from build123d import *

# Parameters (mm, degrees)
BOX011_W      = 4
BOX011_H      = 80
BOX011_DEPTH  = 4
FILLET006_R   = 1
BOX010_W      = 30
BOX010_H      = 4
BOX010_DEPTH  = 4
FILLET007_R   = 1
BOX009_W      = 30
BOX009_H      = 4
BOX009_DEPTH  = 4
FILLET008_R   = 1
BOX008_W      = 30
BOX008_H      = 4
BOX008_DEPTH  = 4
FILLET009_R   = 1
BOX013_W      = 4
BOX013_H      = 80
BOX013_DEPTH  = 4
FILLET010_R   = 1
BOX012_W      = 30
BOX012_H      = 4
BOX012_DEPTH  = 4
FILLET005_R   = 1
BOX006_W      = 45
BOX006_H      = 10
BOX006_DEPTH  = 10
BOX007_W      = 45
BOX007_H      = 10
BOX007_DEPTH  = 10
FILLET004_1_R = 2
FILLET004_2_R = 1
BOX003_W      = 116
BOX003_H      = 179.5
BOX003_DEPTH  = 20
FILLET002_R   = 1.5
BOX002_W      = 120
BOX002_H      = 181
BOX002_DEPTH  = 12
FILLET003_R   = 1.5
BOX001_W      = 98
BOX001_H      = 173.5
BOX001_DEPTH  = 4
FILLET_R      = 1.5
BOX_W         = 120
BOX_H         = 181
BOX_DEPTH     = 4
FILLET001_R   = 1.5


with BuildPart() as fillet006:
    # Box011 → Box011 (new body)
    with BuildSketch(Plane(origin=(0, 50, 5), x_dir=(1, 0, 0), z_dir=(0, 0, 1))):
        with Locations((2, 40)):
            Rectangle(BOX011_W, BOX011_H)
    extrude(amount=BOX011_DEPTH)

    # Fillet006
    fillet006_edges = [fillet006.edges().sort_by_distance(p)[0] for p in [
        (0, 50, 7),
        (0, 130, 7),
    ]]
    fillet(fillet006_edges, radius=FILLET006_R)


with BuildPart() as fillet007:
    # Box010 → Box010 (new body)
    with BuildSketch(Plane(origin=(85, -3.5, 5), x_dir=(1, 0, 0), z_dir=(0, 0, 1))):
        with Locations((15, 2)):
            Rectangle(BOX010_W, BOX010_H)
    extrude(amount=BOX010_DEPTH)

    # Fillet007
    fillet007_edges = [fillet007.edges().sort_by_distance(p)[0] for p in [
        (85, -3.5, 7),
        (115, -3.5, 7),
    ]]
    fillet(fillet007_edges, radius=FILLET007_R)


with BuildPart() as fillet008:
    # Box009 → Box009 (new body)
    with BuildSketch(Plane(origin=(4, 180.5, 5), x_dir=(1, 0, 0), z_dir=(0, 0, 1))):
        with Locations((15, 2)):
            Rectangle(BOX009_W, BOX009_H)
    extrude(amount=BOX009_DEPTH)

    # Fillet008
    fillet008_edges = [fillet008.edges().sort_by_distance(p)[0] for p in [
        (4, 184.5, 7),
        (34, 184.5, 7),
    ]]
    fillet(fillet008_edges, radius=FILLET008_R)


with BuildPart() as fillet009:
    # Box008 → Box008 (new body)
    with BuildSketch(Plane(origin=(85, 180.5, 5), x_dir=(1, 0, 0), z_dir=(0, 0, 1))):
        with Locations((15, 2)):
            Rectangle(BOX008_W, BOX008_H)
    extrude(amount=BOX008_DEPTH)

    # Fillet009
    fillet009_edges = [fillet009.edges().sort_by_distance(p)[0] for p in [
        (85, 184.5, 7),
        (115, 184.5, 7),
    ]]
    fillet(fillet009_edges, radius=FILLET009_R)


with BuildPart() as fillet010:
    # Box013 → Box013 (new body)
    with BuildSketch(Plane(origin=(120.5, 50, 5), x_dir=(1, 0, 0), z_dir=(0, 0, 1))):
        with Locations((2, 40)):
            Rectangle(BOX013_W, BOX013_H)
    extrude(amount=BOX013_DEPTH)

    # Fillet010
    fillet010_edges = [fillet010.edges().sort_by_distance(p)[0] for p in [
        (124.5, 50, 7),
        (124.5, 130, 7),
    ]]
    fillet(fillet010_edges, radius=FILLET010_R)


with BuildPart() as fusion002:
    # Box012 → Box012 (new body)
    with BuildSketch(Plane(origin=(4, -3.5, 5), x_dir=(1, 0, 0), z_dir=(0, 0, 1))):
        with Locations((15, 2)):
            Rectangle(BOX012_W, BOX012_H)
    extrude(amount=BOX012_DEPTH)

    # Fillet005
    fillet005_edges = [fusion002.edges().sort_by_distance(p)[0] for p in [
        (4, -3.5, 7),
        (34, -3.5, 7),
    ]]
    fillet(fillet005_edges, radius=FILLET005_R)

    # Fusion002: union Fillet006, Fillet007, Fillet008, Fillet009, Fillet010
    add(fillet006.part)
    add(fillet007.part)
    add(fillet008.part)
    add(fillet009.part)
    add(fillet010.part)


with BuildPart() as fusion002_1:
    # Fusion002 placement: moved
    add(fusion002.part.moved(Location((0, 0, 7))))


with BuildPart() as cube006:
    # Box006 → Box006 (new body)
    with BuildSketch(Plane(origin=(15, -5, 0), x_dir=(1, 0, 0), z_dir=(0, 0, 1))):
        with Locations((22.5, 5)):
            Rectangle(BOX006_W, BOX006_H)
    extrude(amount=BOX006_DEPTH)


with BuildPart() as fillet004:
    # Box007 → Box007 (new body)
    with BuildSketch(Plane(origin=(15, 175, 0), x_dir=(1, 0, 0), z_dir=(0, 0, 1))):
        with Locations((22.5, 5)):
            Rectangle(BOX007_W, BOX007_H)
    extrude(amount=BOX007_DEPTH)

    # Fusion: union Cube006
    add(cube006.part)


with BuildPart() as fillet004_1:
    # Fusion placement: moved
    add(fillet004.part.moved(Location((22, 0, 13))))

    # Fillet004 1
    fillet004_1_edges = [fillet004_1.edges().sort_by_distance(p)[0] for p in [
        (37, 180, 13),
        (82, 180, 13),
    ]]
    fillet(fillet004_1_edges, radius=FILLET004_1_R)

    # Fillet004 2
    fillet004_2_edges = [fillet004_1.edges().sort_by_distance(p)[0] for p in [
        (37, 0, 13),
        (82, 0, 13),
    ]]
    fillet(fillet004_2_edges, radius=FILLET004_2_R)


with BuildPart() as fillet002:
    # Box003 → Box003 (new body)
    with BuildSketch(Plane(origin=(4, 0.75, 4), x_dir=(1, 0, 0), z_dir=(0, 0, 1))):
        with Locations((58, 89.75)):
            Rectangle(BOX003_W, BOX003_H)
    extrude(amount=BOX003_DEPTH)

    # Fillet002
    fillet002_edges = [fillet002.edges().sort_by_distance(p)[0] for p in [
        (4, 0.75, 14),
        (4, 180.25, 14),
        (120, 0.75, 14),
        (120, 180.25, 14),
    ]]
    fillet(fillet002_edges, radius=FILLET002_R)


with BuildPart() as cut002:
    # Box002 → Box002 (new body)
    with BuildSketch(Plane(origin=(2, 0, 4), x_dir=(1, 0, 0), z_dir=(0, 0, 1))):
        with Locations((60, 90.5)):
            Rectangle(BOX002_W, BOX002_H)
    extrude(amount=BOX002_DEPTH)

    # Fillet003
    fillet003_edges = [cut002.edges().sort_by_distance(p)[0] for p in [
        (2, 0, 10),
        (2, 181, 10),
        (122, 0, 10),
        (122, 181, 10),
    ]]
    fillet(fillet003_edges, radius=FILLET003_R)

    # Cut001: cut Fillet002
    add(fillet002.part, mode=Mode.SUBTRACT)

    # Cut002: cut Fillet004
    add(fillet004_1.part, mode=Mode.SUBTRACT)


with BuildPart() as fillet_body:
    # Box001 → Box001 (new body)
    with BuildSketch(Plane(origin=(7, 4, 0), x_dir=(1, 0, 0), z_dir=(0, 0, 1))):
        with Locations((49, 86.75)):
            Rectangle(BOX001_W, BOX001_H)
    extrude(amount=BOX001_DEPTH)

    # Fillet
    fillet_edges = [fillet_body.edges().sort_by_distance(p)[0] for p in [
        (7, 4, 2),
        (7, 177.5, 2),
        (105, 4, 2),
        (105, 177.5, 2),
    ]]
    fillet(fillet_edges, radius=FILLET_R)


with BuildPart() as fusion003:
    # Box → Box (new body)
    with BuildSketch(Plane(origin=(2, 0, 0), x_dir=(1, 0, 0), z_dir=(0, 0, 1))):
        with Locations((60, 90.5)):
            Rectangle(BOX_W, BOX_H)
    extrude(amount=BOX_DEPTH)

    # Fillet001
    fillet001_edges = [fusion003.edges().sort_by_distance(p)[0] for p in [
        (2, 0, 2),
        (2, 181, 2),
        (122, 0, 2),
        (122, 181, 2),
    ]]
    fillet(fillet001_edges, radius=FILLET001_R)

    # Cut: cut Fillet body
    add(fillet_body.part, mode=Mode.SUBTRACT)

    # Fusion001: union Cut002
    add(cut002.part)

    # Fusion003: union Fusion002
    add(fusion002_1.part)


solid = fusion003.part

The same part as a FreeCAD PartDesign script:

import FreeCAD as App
import Part
import Sketcher
Q = App.Units.Quantity


def edges_at(feature, points):
    """Names of the edges that pass closest to the given points."""
    edges = feature.Shape.Edges
    near = lambda p: min(range(len(edges)), key=lambda i: edges[i].distToShape(Part.Vertex(*p))[0])
    return sorted({f"Edge{near(p) + 1}" for p in points})

doc = App.newDocument("Part")
body = doc.addObject("PartDesign::Body", "Body")

# Sketch on XY plane
sketch1 = body.newObject("Sketcher::SketchObject", "Sketch")
sketch1.AttachmentSupport = (doc.getObject("XY_Plane"), [""])
sketch1.MapMode = "FlatFace"
sketch1.AttachmentOffset = App.Placement(App.Vector(0, 0, 5), App.Rotation())
sketch1.addGeometry(Part.LineSegment(App.Vector(0, 130, 0), App.Vector(0, 50, 0)), False)
sketch1.addGeometry(Part.LineSegment(App.Vector(0, 50, 0), App.Vector(4, 50, 0)), False)
sketch1.addGeometry(Part.LineSegment(App.Vector(4, 50, 0), App.Vector(4, 130, 0)), False)
sketch1.addGeometry(Part.LineSegment(App.Vector(4, 130, 0), App.Vector(0, 130, 0)), False)
sketch1.addConstraint(Sketcher.Constraint("Coincident", 0, 2, 1, 1))
sketch1.addConstraint(Sketcher.Constraint("Coincident", 1, 2, 2, 1))
sketch1.addConstraint(Sketcher.Constraint("Coincident", 2, 2, 3, 1))
sketch1.addConstraint(Sketcher.Constraint("Coincident", 3, 2, 0, 1))
sketch1.addConstraint(Sketcher.Constraint("Vertical", 0))
sketch1.addConstraint(Sketcher.Constraint("Horizontal", 1))
sketch1.addConstraint(Sketcher.Constraint("Vertical", 2))
sketch1.addConstraint(Sketcher.Constraint("Horizontal", 3))
sketch1.addConstraint(Sketcher.Constraint("PointOnObject", 0, 2, -2))
sketch1.addConstraint(Sketcher.Constraint("DistanceX", 1, 1, 1, 2, Q("4 mm")))
sketch1.addConstraint(Sketcher.Constraint("DistanceY", 0, 2, 0, 1, Q("80 mm")))
sketch1.addConstraint(Sketcher.Constraint("DistanceY", -1, 1, 0, 2, Q("50 mm")))
pad1 = body.newObject("PartDesign::Pad", "Pad")
pad1.Profile = sketch1
pad1.Length = 4
doc.recompute()

fillet = body.newObject("PartDesign::Fillet", "Fillet")
fillet.Base = (pad1, edges_at(pad1, [(0, 50, 7), (0, 130, 7)]))
fillet.Radius = 1
body2 = doc.addObject("PartDesign::Body", "Body001")

# Sketch on XY plane
sketch2 = body2.newObject("Sketcher::SketchObject", "Sketch001")
sketch2.AttachmentSupport = (doc.getObject("XY_Plane001"), [""])
sketch2.MapMode = "FlatFace"
sketch2.AttachmentOffset = App.Placement(App.Vector(0, 0, 5), App.Rotation())
sketch2.addGeometry(Part.LineSegment(App.Vector(85, 0.5, 0), App.Vector(85, -3.5, 0)), False)
sketch2.addGeometry(Part.LineSegment(App.Vector(85, -3.5, 0), App.Vector(115, -3.5, 0)), False)
sketch2.addGeometry(Part.LineSegment(App.Vector(115, -3.5, 0), App.Vector(115, 0.5, 0)), False)
sketch2.addGeometry(Part.LineSegment(App.Vector(115, 0.5, 0), App.Vector(85, 0.5, 0)), False)
sketch2.addConstraint(Sketcher.Constraint("Coincident", 0, 2, 1, 1))
sketch2.addConstraint(Sketcher.Constraint("Coincident", 1, 2, 2, 1))
sketch2.addConstraint(Sketcher.Constraint("Coincident", 2, 2, 3, 1))
sketch2.addConstraint(Sketcher.Constraint("Coincident", 3, 2, 0, 1))
sketch2.addConstraint(Sketcher.Constraint("Vertical", 0))
sketch2.addConstraint(Sketcher.Constraint("Horizontal", 1))
sketch2.addConstraint(Sketcher.Constraint("Vertical", 2))
sketch2.addConstraint(Sketcher.Constraint("Horizontal", 3))
sketch2.addConstraint(Sketcher.Constraint("DistanceX", 1, 1, 1, 2, Q("30 mm")))
sketch2.addConstraint(Sketcher.Constraint("DistanceY", 0, 2, 0, 1, Q("4 mm")))
sketch2.addConstraint(Sketcher.Constraint("DistanceX", -1, 1, 0, 2, Q("85 mm")))
sketch2.addConstraint(Sketcher.Constraint("DistanceY", 0, 2, -1, 1, Q("3.5 mm")))
pad2 = body2.newObject("PartDesign::Pad", "Pad001")
pad2.Profile = sketch2
pad2.Length = 4
doc.recompute()

fillet2 = body2.newObject("PartDesign::Fillet", "Fillet001")
fillet2.Base = (pad2, edges_at(pad2, [(85, -3.5, 7), (115, -3.5, 7)]))
fillet2.Radius = 1
body3 = doc.addObject("PartDesign::Body", "Body002")

# Sketch on XY plane
sketch3 = body3.newObject("Sketcher::SketchObject", "Sketch002")
sketch3.AttachmentSupport = (doc.getObject("XY_Plane002"), [""])
sketch3.MapMode = "FlatFace"
sketch3.AttachmentOffset = App.Placement(App.Vector(0, 0, 5), App.Rotation())
sketch3.addGeometry(Part.LineSegment(App.Vector(4, 184.5, 0), App.Vector(4, 180.5, 0)), False)
sketch3.addGeometry(Part.LineSegment(App.Vector(4, 180.5, 0), App.Vector(34, 180.5, 0)), False)
sketch3.addGeometry(Part.LineSegment(App.Vector(34, 180.5, 0), App.Vector(34, 184.5, 0)), False)
sketch3.addGeometry(Part.LineSegment(App.Vector(34, 184.5, 0), App.Vector(4, 184.5, 0)), False)
sketch3.addConstraint(Sketcher.Constraint("Coincident", 0, 2, 1, 1))
sketch3.addConstraint(Sketcher.Constraint("Coincident", 1, 2, 2, 1))
sketch3.addConstraint(Sketcher.Constraint("Coincident", 2, 2, 3, 1))
sketch3.addConstraint(Sketcher.Constraint("Coincident", 3, 2, 0, 1))
sketch3.addConstraint(Sketcher.Constraint("Vertical", 0))
sketch3.addConstraint(Sketcher.Constraint("Horizontal", 1))
sketch3.addConstraint(Sketcher.Constraint("Vertical", 2))
sketch3.addConstraint(Sketcher.Constraint("Horizontal", 3))
sketch3.addConstraint(Sketcher.Constraint("DistanceX", 1, 1, 1, 2, Q("30 mm")))
sketch3.addConstraint(Sketcher.Constraint("DistanceY", 0, 2, 0, 1, Q("4 mm")))
sketch3.addConstraint(Sketcher.Constraint("DistanceX", -1, 1, 0, 2, Q("4 mm")))
sketch3.addConstraint(Sketcher.Constraint("DistanceY", -1, 1, 0, 2, Q("180.5 mm")))
pad3 = body3.newObject("PartDesign::Pad", "Pad002")
pad3.Profile = sketch3
pad3.Length = 4
doc.recompute()

fillet3 = body3.newObject("PartDesign::Fillet", "Fillet002")
fillet3.Base = (pad3, edges_at(pad3, [(4, 184.5, 7), (34, 184.5, 7)]))
fillet3.Radius = 1
body4 = doc.addObject("PartDesign::Body", "Body003")

# Sketch on XY plane
sketch4 = body4.newObject("Sketcher::SketchObject", "Sketch003")
sketch4.AttachmentSupport = (doc.getObject("XY_Plane003"), [""])
sketch4.MapMode = "FlatFace"
sketch4.AttachmentOffset = App.Placement(App.Vector(0, 0, 5), App.Rotation())
sketch4.addGeometry(Part.LineSegment(App.Vector(85, 184.5, 0), App.Vector(85, 180.5, 0)), False)
sketch4.addGeometry(Part.LineSegment(App.Vector(85, 180.5, 0), App.Vector(115, 180.5, 0)), False)
sketch4.addGeometry(Part.LineSegment(App.Vector(115, 180.5, 0), App.Vector(115, 184.5, 0)), False)
sketch4.addGeometry(Part.LineSegment(App.Vector(115, 184.5, 0), App.Vector(85, 184.5, 0)), False)
sketch4.addConstraint(Sketcher.Constraint("Coincident", 0, 2, 1, 1))
sketch4.addConstraint(Sketcher.Constraint("Coincident", 1, 2, 2, 1))
sketch4.addConstraint(Sketcher.Constraint("Coincident", 2, 2, 3, 1))
sketch4.addConstraint(Sketcher.Constraint("Coincident", 3, 2, 0, 1))
sketch4.addConstraint(Sketcher.Constraint("Vertical", 0))
sketch4.addConstraint(Sketcher.Constraint("Horizontal", 1))
sketch4.addConstraint(Sketcher.Constraint("Vertical", 2))
sketch4.addConstraint(Sketcher.Constraint("Horizontal", 3))
sketch4.addConstraint(Sketcher.Constraint("DistanceX", 1, 1, 1, 2, Q("30 mm")))
sketch4.addConstraint(Sketcher.Constraint("DistanceY", 0, 2, 0, 1, Q("4 mm")))
sketch4.addConstraint(Sketcher.Constraint("DistanceX", -1, 1, 0, 2, Q("85 mm")))
sketch4.addConstraint(Sketcher.Constraint("DistanceY", -1, 1, 0, 2, Q("180.5 mm")))
pad4 = body4.newObject("PartDesign::Pad", "Pad003")
pad4.Profile = sketch4
pad4.Length = 4
doc.recompute()

fillet4 = body4.newObject("PartDesign::Fillet", "Fillet003")
fillet4.Base = (pad4, edges_at(pad4, [(85, 184.5, 7), (115, 184.5, 7)]))
fillet4.Radius = 1
body5 = doc.addObject("PartDesign::Body", "Body004")

# Sketch on XY plane
sketch5 = body5.newObject("Sketcher::SketchObject", "Sketch004")
sketch5.AttachmentSupport = (doc.getObject("XY_Plane004"), [""])
sketch5.MapMode = "FlatFace"
sketch5.AttachmentOffset = App.Placement(App.Vector(0, 0, 5), App.Rotation())
sketch5.addGeometry(Part.LineSegment(App.Vector(120.5, 130, 0), App.Vector(120.5, 50, 0)), False)
sketch5.addGeometry(Part.LineSegment(App.Vector(120.5, 50, 0), App.Vector(124.5, 50, 0)), False)
sketch5.addGeometry(Part.LineSegment(App.Vector(124.5, 50, 0), App.Vector(124.5, 130, 0)), False)
sketch5.addGeometry(Part.LineSegment(App.Vector(124.5, 130, 0), App.Vector(120.5, 130, 0)), False)
sketch5.addConstraint(Sketcher.Constraint("Coincident", 0, 2, 1, 1))
sketch5.addConstraint(Sketcher.Constraint("Coincident", 1, 2, 2, 1))
sketch5.addConstraint(Sketcher.Constraint("Coincident", 2, 2, 3, 1))
sketch5.addConstraint(Sketcher.Constraint("Coincident", 3, 2, 0, 1))
sketch5.addConstraint(Sketcher.Constraint("Vertical", 0))
sketch5.addConstraint(Sketcher.Constraint("Horizontal", 1))
sketch5.addConstraint(Sketcher.Constraint("Vertical", 2))
sketch5.addConstraint(Sketcher.Constraint("Horizontal", 3))
sketch5.addConstraint(Sketcher.Constraint("DistanceX", 1, 1, 1, 2, Q("4 mm")))
sketch5.addConstraint(Sketcher.Constraint("DistanceY", 0, 2, 0, 1, Q("80 mm")))
sketch5.addConstraint(Sketcher.Constraint("DistanceY", -1, 1, 0, 2, Q("50 mm")))
sketch5.addConstraint(Sketcher.Constraint("DistanceX", -1, 1, 0, 2, Q("120.5 mm")))
pad5 = body5.newObject("PartDesign::Pad", "Pad004")
pad5.Profile = sketch5
pad5.Length = 4
doc.recompute()

fillet5 = body5.newObject("PartDesign::Fillet", "Fillet004")
fillet5.Base = (pad5, edges_at(pad5, [(124.5, 50, 7), (124.5, 130, 7)]))
fillet5.Radius = 1
body6 = doc.addObject("PartDesign::Body", "Body005")
body6.AllowCompound = True

# Sketch on XY plane
sketch6 = body6.newObject("Sketcher::SketchObject", "Sketch005")
sketch6.AttachmentSupport = (doc.getObject("XY_Plane005"), [""])
sketch6.MapMode = "FlatFace"
sketch6.AttachmentOffset = App.Placement(App.Vector(0, 0, 5), App.Rotation())
sketch6.addGeometry(Part.LineSegment(App.Vector(4, 0.5, 0), App.Vector(4, -3.5, 0)), False)
sketch6.addGeometry(Part.LineSegment(App.Vector(4, -3.5, 0), App.Vector(34, -3.5, 0)), False)
sketch6.addGeometry(Part.LineSegment(App.Vector(34, -3.5, 0), App.Vector(34, 0.5, 0)), False)
sketch6.addGeometry(Part.LineSegment(App.Vector(34, 0.5, 0), App.Vector(4, 0.5, 0)), False)
sketch6.addConstraint(Sketcher.Constraint("Coincident", 0, 2, 1, 1))
sketch6.addConstraint(Sketcher.Constraint("Coincident", 1, 2, 2, 1))
sketch6.addConstraint(Sketcher.Constraint("Coincident", 2, 2, 3, 1))
sketch6.addConstraint(Sketcher.Constraint("Coincident", 3, 2, 0, 1))
sketch6.addConstraint(Sketcher.Constraint("Vertical", 0))
sketch6.addConstraint(Sketcher.Constraint("Horizontal", 1))
sketch6.addConstraint(Sketcher.Constraint("Vertical", 2))
sketch6.addConstraint(Sketcher.Constraint("Horizontal", 3))
sketch6.addConstraint(Sketcher.Constraint("DistanceX", 1, 1, 1, 2, Q("30 mm")))
sketch6.addConstraint(Sketcher.Constraint("DistanceY", 0, 2, 0, 1, Q("4 mm")))
sketch6.addConstraint(Sketcher.Constraint("DistanceX", -1, 1, 0, 2, Q("4 mm")))
sketch6.addConstraint(Sketcher.Constraint("DistanceY", 0, 2, -1, 1, Q("3.5 mm")))
pad6 = body6.newObject("PartDesign::Pad", "Pad005")
pad6.Profile = sketch6
pad6.Length = 4
doc.recompute()

fillet6 = body6.newObject("PartDesign::Fillet", "Fillet005")
fillet6.Base = (pad6, edges_at(pad6, [(4, -3.5, 7), (34, -3.5, 7)]))
fillet6.Radius = 1
doc.recompute()

boolean = body6.newObject("PartDesign::Boolean", "Boolean")
boolean.Type = "Fuse"
boolean.addObjects([body])
doc.recompute()

boolean2 = body6.newObject("PartDesign::Boolean", "Boolean001")
boolean2.Type = "Fuse"
boolean2.addObjects([body2])
doc.recompute()

boolean3 = body6.newObject("PartDesign::Boolean", "Boolean002")
boolean3.Type = "Fuse"
boolean3.addObjects([body3])
doc.recompute()

boolean4 = body6.newObject("PartDesign::Boolean", "Boolean003")
boolean4.Type = "Fuse"
boolean4.addObjects([body4])
doc.recompute()

boolean5 = body6.newObject("PartDesign::Boolean", "Boolean004")
boolean5.Type = "Fuse"
boolean5.addObjects([body5])
body7 = doc.addObject("PartDesign::Body", "Body006")
body7.AllowCompound = True
doc.recompute()

body6.Placement = App.Placement(App.Vector(0, 0, 7), App.Rotation(App.Vector(0, 0, 1), 0))
boolean6 = body7.newObject("PartDesign::Boolean", "Boolean005")
boolean6.Type = "Fuse"
boolean6.addObjects([body6])
body8 = doc.addObject("PartDesign::Body", "Body007")

# Sketch on XY plane
sketch7 = body8.newObject("Sketcher::SketchObject", "Sketch006")
sketch7.AttachmentSupport = (doc.getObject("XY_Plane007"), [""])
sketch7.MapMode = "FlatFace"
sketch7.addGeometry(Part.LineSegment(App.Vector(15, 5, 0), App.Vector(15, -5, 0)), False)
sketch7.addGeometry(Part.LineSegment(App.Vector(15, -5, 0), App.Vector(60, -5, 0)), False)
sketch7.addGeometry(Part.LineSegment(App.Vector(60, -5, 0), App.Vector(60, 5, 0)), False)
sketch7.addGeometry(Part.LineSegment(App.Vector(60, 5, 0), App.Vector(15, 5, 0)), False)
sketch7.addConstraint(Sketcher.Constraint("Coincident", 0, 2, 1, 1))
sketch7.addConstraint(Sketcher.Constraint("Coincident", 1, 2, 2, 1))
sketch7.addConstraint(Sketcher.Constraint("Coincident", 2, 2, 3, 1))
sketch7.addConstraint(Sketcher.Constraint("Coincident", 3, 2, 0, 1))
sketch7.addConstraint(Sketcher.Constraint("Vertical", 0))
sketch7.addConstraint(Sketcher.Constraint("Horizontal", 1))
sketch7.addConstraint(Sketcher.Constraint("Vertical", 2))
sketch7.addConstraint(Sketcher.Constraint("Horizontal", 3))
sketch7.addConstraint(Sketcher.Constraint("DistanceX", 1, 1, 1, 2, Q("45 mm")))
sketch7.addConstraint(Sketcher.Constraint("DistanceY", 0, 2, 0, 1, Q("10 mm")))
sketch7.addConstraint(Sketcher.Constraint("DistanceX", -1, 1, 0, 2, Q("15 mm")))
sketch7.addConstraint(Sketcher.Constraint("DistanceY", 0, 2, -1, 1, Q("5 mm")))
pad7 = body8.newObject("PartDesign::Pad", "Pad006")
pad7.Profile = sketch7
pad7.Length = 10
body9 = doc.addObject("PartDesign::Body", "Body008")
body9.AllowCompound = True

# Sketch on XY plane
sketch8 = body9.newObject("Sketcher::SketchObject", "Sketch007")
sketch8.AttachmentSupport = (doc.getObject("XY_Plane008"), [""])
sketch8.MapMode = "FlatFace"
sketch8.addGeometry(Part.LineSegment(App.Vector(15, 185, 0), App.Vector(15, 175, 0)), False)
sketch8.addGeometry(Part.LineSegment(App.Vector(15, 175, 0), App.Vector(60, 175, 0)), False)
sketch8.addGeometry(Part.LineSegment(App.Vector(60, 175, 0), App.Vector(60, 185, 0)), False)
sketch8.addGeometry(Part.LineSegment(App.Vector(60, 185, 0), App.Vector(15, 185, 0)), False)
sketch8.addConstraint(Sketcher.Constraint("Coincident", 0, 2, 1, 1))
sketch8.addConstraint(Sketcher.Constraint("Coincident", 1, 2, 2, 1))
sketch8.addConstraint(Sketcher.Constraint("Coincident", 2, 2, 3, 1))
sketch8.addConstraint(Sketcher.Constraint("Coincident", 3, 2, 0, 1))
sketch8.addConstraint(Sketcher.Constraint("Vertical", 0))
sketch8.addConstraint(Sketcher.Constraint("Horizontal", 1))
sketch8.addConstraint(Sketcher.Constraint("Vertical", 2))
sketch8.addConstraint(Sketcher.Constraint("Horizontal", 3))
sketch8.addConstraint(Sketcher.Constraint("DistanceX", 1, 1, 1, 2, Q("45 mm")))
sketch8.addConstraint(Sketcher.Constraint("DistanceY", 0, 2, 0, 1, Q("10 mm")))
sketch8.addConstraint(Sketcher.Constraint("DistanceX", -1, 1, 0, 2, Q("15 mm")))
sketch8.addConstraint(Sketcher.Constraint("DistanceY", -1, 1, 0, 2, Q("175 mm")))
pad8 = body9.newObject("PartDesign::Pad", "Pad007")
pad8.Profile = sketch8
pad8.Length = 10
doc.recompute()

boolean7 = body9.newObject("PartDesign::Boolean", "Boolean006")
boolean7.Type = "Fuse"
boolean7.addObjects([body8])
body10 = doc.addObject("PartDesign::Body", "Body009")
body10.AllowCompound = True
doc.recompute()

body9.Placement = App.Placement(App.Vector(22, 0, 13), App.Rotation(App.Vector(0, 0, 1), 0))
boolean8 = body10.newObject("PartDesign::Boolean", "Boolean007")
boolean8.Type = "Fuse"
boolean8.addObjects([body9])
doc.recompute()

fillet7 = body10.newObject("PartDesign::Fillet", "Fillet006")
fillet7.Base = (boolean8, edges_at(boolean8, [(37, 180, 13), (82, 180, 13)]))
fillet7.Radius = 2
doc.recompute()

fillet8 = body10.newObject("PartDesign::Fillet", "Fillet007")
fillet8.Base = (fillet7, edges_at(fillet7, [(37, 0, 13), (82, 0, 13)]))
fillet8.Radius = 1
body11 = doc.addObject("PartDesign::Body", "Body010")

# Sketch on XY plane
sketch9 = body11.newObject("Sketcher::SketchObject", "Sketch008")
sketch9.AttachmentSupport = (doc.getObject("XY_Plane010"), [""])
sketch9.MapMode = "FlatFace"
sketch9.AttachmentOffset = App.Placement(App.Vector(0, 0, 4), App.Rotation())
sketch9.addGeometry(Part.LineSegment(App.Vector(4, 180, 0), App.Vector(4, 1, 0)), False)
sketch9.addGeometry(Part.LineSegment(App.Vector(4, 1, 0), App.Vector(120, 1, 0)), False)
sketch9.addGeometry(Part.LineSegment(App.Vector(120, 1, 0), App.Vector(120, 180, 0)), False)
sketch9.addGeometry(Part.LineSegment(App.Vector(120, 180, 0), App.Vector(4, 180, 0)), False)
sketch9.addConstraint(Sketcher.Constraint("Coincident", 0, 2, 1, 1))
sketch9.addConstraint(Sketcher.Constraint("Coincident", 1, 2, 2, 1))
sketch9.addConstraint(Sketcher.Constraint("Coincident", 2, 2, 3, 1))
sketch9.addConstraint(Sketcher.Constraint("Coincident", 3, 2, 0, 1))
sketch9.addConstraint(Sketcher.Constraint("Vertical", 0))
sketch9.addConstraint(Sketcher.Constraint("Horizontal", 1))
sketch9.addConstraint(Sketcher.Constraint("Vertical", 2))
sketch9.addConstraint(Sketcher.Constraint("Horizontal", 3))
sketch9.addConstraint(Sketcher.Constraint("DistanceX", 1, 1, 1, 2, Q("116 mm")))
sketch9.addConstraint(Sketcher.Constraint("DistanceY", 0, 2, 0, 1, Q("179.5 mm")))
sketch9.addConstraint(Sketcher.Constraint("DistanceX", -1, 1, 0, 2, Q("4 mm")))
sketch9.addConstraint(Sketcher.Constraint("DistanceY", -1, 1, 0, 2, Q("0.75 mm")))
pad9 = body11.newObject("PartDesign::Pad", "Pad008")
pad9.Profile = sketch9
pad9.Length = 20
doc.recompute()

fillet9 = body11.newObject("PartDesign::Fillet", "Fillet008")
fillet9.Base = (pad9, edges_at(pad9, [
    (4, 0.75, 14),
    (4, 180.25, 14),
    (120, 0.75, 14),
    (120, 180.25, 14),
]))
fillet9.Radius = 1.5
body12 = doc.addObject("PartDesign::Body", "Body011")

# Sketch on XY plane
sketch10 = body12.newObject("Sketcher::SketchObject", "Sketch009")
sketch10.AttachmentSupport = (doc.getObject("XY_Plane011"), [""])
sketch10.MapMode = "FlatFace"
sketch10.AttachmentOffset = App.Placement(App.Vector(0, 0, 4), App.Rotation())
sketch10.addGeometry(Part.LineSegment(App.Vector(2, 181, 0), App.Vector(2, 0, 0)), False)
sketch10.addGeometry(Part.LineSegment(App.Vector(2, 0, 0), App.Vector(122, 0, 0)), False)
sketch10.addGeometry(Part.LineSegment(App.Vector(122, 0, 0), App.Vector(122, 181, 0)), False)
sketch10.addGeometry(Part.LineSegment(App.Vector(122, 181, 0), App.Vector(2, 181, 0)), False)
sketch10.addConstraint(Sketcher.Constraint("Coincident", 0, 2, 1, 1))
sketch10.addConstraint(Sketcher.Constraint("Coincident", 1, 2, 2, 1))
sketch10.addConstraint(Sketcher.Constraint("Coincident", 2, 2, 3, 1))
sketch10.addConstraint(Sketcher.Constraint("Coincident", 3, 2, 0, 1))
sketch10.addConstraint(Sketcher.Constraint("Vertical", 0))
sketch10.addConstraint(Sketcher.Constraint("Horizontal", 1))
sketch10.addConstraint(Sketcher.Constraint("Vertical", 2))
sketch10.addConstraint(Sketcher.Constraint("Horizontal", 3))
sketch10.addConstraint(Sketcher.Constraint("PointOnObject", 0, 2, -1))
sketch10.addConstraint(Sketcher.Constraint("DistanceX", 1, 1, 1, 2, Q("120 mm")))
sketch10.addConstraint(Sketcher.Constraint("DistanceY", 0, 2, 0, 1, Q("181 mm")))
sketch10.addConstraint(Sketcher.Constraint("DistanceX", -1, 1, 0, 2, Q("2 mm")))
pad10 = body12.newObject("PartDesign::Pad", "Pad009")
pad10.Profile = sketch10
pad10.Length = 12
doc.recompute()

fillet10 = body12.newObject("PartDesign::Fillet", "Fillet009")
fillet10.Base = (pad10, edges_at(pad10, [
    (2, 0, 10),
    (2, 181, 10),
    (122, 0, 10),
    (122, 181, 10),
]))
fillet10.Radius = 1.5
doc.recompute()

boolean9 = body12.newObject("PartDesign::Boolean", "Boolean008")
boolean9.Type = "Cut"
boolean9.addObjects([body11])
doc.recompute()

boolean10 = body12.newObject("PartDesign::Boolean", "Boolean009")
boolean10.Type = "Cut"
boolean10.addObjects([body10])
body13 = doc.addObject("PartDesign::Body", "Body012")

# Sketch on XY plane
sketch11 = body13.newObject("Sketcher::SketchObject", "Sketch010")
sketch11.AttachmentSupport = (doc.getObject("XY_Plane012"), [""])
sketch11.MapMode = "FlatFace"
sketch11.addGeometry(Part.LineSegment(App.Vector(7, 178, 0), App.Vector(7, 4, 0)), False)
sketch11.addGeometry(Part.LineSegment(App.Vector(7, 4, 0), App.Vector(105, 4, 0)), False)
sketch11.addGeometry(Part.LineSegment(App.Vector(105, 4, 0), App.Vector(105, 178, 0)), False)
sketch11.addGeometry(Part.LineSegment(App.Vector(105, 178, 0), App.Vector(7, 178, 0)), False)
sketch11.addConstraint(Sketcher.Constraint("Coincident", 0, 2, 1, 1))
sketch11.addConstraint(Sketcher.Constraint("Coincident", 1, 2, 2, 1))
sketch11.addConstraint(Sketcher.Constraint("Coincident", 2, 2, 3, 1))
sketch11.addConstraint(Sketcher.Constraint("Coincident", 3, 2, 0, 1))
sketch11.addConstraint(Sketcher.Constraint("Vertical", 0))
sketch11.addConstraint(Sketcher.Constraint("Horizontal", 1))
sketch11.addConstraint(Sketcher.Constraint("Vertical", 2))
sketch11.addConstraint(Sketcher.Constraint("Horizontal", 3))
sketch11.addConstraint(Sketcher.Constraint("DistanceX", 1, 1, 1, 2, Q("98 mm")))
sketch11.addConstraint(Sketcher.Constraint("DistanceY", 0, 2, 0, 1, Q("173.5 mm")))
sketch11.addConstraint(Sketcher.Constraint("DistanceX", -1, 1, 0, 2, Q("7 mm")))
sketch11.addConstraint(Sketcher.Constraint("DistanceY", -1, 1, 0, 2, Q("4 mm")))
pad11 = body13.newObject("PartDesign::Pad", "Pad010")
pad11.Profile = sketch11
pad11.Length = 4
doc.recompute()

fillet11 = body13.newObject("PartDesign::Fillet", "Fillet010")
fillet11.Base = (pad11, edges_at(pad11, [
    (7, 4, 2),
    (7, 177.5, 2),
    (105, 4, 2),
    (105, 177.5, 2),
]))
fillet11.Radius = 1.5
body14 = doc.addObject("PartDesign::Body", "Body013")

# Sketch on XY plane
sketch12 = body14.newObject("Sketcher::SketchObject", "Sketch011")
sketch12.AttachmentSupport = (doc.getObject("XY_Plane013"), [""])
sketch12.MapMode = "FlatFace"
sketch12.addGeometry(Part.LineSegment(App.Vector(2, 181, 0), App.Vector(2, 0, 0)), False)
sketch12.addGeometry(Part.LineSegment(App.Vector(2, 0, 0), App.Vector(122, 0, 0)), False)
sketch12.addGeometry(Part.LineSegment(App.Vector(122, 0, 0), App.Vector(122, 181, 0)), False)
sketch12.addGeometry(Part.LineSegment(App.Vector(122, 181, 0), App.Vector(2, 181, 0)), False)
sketch12.addConstraint(Sketcher.Constraint("Coincident", 0, 2, 1, 1))
sketch12.addConstraint(Sketcher.Constraint("Coincident", 1, 2, 2, 1))
sketch12.addConstraint(Sketcher.Constraint("Coincident", 2, 2, 3, 1))
sketch12.addConstraint(Sketcher.Constraint("Coincident", 3, 2, 0, 1))
sketch12.addConstraint(Sketcher.Constraint("Vertical", 0))
sketch12.addConstraint(Sketcher.Constraint("Horizontal", 1))
sketch12.addConstraint(Sketcher.Constraint("Vertical", 2))
sketch12.addConstraint(Sketcher.Constraint("Horizontal", 3))
sketch12.addConstraint(Sketcher.Constraint("PointOnObject", 0, 2, -1))
sketch12.addConstraint(Sketcher.Constraint("DistanceX", 1, 1, 1, 2, Q("120 mm")))
sketch12.addConstraint(Sketcher.Constraint("DistanceY", 0, 2, 0, 1, Q("181 mm")))
sketch12.addConstraint(Sketcher.Constraint("DistanceX", -1, 1, 0, 2, Q("2 mm")))
pad12 = body14.newObject("PartDesign::Pad", "Pad011")
pad12.Profile = sketch12
pad12.Length = 4
doc.recompute()

fillet12 = body14.newObject("PartDesign::Fillet", "Fillet011")
fillet12.Base = (pad12, edges_at(pad12, [
    (2, 0, 2),
    (2, 181, 2),
    (122, 0, 2),
    (122, 181, 2),
]))
fillet12.Radius = 1.5
doc.recompute()

boolean11 = body14.newObject("PartDesign::Boolean", "Boolean010")
boolean11.Type = "Cut"
boolean11.addObjects([body13])
doc.recompute()

boolean12 = body14.newObject("PartDesign::Boolean", "Boolean011")
boolean12.Type = "Fuse"
boolean12.addObjects([body12])
doc.recompute()

boolean13 = body14.newObject("PartDesign::Boolean", "Boolean012")
boolean13.Type = "Fuse"
boolean13.addObjects([body7])

doc.recompute()
